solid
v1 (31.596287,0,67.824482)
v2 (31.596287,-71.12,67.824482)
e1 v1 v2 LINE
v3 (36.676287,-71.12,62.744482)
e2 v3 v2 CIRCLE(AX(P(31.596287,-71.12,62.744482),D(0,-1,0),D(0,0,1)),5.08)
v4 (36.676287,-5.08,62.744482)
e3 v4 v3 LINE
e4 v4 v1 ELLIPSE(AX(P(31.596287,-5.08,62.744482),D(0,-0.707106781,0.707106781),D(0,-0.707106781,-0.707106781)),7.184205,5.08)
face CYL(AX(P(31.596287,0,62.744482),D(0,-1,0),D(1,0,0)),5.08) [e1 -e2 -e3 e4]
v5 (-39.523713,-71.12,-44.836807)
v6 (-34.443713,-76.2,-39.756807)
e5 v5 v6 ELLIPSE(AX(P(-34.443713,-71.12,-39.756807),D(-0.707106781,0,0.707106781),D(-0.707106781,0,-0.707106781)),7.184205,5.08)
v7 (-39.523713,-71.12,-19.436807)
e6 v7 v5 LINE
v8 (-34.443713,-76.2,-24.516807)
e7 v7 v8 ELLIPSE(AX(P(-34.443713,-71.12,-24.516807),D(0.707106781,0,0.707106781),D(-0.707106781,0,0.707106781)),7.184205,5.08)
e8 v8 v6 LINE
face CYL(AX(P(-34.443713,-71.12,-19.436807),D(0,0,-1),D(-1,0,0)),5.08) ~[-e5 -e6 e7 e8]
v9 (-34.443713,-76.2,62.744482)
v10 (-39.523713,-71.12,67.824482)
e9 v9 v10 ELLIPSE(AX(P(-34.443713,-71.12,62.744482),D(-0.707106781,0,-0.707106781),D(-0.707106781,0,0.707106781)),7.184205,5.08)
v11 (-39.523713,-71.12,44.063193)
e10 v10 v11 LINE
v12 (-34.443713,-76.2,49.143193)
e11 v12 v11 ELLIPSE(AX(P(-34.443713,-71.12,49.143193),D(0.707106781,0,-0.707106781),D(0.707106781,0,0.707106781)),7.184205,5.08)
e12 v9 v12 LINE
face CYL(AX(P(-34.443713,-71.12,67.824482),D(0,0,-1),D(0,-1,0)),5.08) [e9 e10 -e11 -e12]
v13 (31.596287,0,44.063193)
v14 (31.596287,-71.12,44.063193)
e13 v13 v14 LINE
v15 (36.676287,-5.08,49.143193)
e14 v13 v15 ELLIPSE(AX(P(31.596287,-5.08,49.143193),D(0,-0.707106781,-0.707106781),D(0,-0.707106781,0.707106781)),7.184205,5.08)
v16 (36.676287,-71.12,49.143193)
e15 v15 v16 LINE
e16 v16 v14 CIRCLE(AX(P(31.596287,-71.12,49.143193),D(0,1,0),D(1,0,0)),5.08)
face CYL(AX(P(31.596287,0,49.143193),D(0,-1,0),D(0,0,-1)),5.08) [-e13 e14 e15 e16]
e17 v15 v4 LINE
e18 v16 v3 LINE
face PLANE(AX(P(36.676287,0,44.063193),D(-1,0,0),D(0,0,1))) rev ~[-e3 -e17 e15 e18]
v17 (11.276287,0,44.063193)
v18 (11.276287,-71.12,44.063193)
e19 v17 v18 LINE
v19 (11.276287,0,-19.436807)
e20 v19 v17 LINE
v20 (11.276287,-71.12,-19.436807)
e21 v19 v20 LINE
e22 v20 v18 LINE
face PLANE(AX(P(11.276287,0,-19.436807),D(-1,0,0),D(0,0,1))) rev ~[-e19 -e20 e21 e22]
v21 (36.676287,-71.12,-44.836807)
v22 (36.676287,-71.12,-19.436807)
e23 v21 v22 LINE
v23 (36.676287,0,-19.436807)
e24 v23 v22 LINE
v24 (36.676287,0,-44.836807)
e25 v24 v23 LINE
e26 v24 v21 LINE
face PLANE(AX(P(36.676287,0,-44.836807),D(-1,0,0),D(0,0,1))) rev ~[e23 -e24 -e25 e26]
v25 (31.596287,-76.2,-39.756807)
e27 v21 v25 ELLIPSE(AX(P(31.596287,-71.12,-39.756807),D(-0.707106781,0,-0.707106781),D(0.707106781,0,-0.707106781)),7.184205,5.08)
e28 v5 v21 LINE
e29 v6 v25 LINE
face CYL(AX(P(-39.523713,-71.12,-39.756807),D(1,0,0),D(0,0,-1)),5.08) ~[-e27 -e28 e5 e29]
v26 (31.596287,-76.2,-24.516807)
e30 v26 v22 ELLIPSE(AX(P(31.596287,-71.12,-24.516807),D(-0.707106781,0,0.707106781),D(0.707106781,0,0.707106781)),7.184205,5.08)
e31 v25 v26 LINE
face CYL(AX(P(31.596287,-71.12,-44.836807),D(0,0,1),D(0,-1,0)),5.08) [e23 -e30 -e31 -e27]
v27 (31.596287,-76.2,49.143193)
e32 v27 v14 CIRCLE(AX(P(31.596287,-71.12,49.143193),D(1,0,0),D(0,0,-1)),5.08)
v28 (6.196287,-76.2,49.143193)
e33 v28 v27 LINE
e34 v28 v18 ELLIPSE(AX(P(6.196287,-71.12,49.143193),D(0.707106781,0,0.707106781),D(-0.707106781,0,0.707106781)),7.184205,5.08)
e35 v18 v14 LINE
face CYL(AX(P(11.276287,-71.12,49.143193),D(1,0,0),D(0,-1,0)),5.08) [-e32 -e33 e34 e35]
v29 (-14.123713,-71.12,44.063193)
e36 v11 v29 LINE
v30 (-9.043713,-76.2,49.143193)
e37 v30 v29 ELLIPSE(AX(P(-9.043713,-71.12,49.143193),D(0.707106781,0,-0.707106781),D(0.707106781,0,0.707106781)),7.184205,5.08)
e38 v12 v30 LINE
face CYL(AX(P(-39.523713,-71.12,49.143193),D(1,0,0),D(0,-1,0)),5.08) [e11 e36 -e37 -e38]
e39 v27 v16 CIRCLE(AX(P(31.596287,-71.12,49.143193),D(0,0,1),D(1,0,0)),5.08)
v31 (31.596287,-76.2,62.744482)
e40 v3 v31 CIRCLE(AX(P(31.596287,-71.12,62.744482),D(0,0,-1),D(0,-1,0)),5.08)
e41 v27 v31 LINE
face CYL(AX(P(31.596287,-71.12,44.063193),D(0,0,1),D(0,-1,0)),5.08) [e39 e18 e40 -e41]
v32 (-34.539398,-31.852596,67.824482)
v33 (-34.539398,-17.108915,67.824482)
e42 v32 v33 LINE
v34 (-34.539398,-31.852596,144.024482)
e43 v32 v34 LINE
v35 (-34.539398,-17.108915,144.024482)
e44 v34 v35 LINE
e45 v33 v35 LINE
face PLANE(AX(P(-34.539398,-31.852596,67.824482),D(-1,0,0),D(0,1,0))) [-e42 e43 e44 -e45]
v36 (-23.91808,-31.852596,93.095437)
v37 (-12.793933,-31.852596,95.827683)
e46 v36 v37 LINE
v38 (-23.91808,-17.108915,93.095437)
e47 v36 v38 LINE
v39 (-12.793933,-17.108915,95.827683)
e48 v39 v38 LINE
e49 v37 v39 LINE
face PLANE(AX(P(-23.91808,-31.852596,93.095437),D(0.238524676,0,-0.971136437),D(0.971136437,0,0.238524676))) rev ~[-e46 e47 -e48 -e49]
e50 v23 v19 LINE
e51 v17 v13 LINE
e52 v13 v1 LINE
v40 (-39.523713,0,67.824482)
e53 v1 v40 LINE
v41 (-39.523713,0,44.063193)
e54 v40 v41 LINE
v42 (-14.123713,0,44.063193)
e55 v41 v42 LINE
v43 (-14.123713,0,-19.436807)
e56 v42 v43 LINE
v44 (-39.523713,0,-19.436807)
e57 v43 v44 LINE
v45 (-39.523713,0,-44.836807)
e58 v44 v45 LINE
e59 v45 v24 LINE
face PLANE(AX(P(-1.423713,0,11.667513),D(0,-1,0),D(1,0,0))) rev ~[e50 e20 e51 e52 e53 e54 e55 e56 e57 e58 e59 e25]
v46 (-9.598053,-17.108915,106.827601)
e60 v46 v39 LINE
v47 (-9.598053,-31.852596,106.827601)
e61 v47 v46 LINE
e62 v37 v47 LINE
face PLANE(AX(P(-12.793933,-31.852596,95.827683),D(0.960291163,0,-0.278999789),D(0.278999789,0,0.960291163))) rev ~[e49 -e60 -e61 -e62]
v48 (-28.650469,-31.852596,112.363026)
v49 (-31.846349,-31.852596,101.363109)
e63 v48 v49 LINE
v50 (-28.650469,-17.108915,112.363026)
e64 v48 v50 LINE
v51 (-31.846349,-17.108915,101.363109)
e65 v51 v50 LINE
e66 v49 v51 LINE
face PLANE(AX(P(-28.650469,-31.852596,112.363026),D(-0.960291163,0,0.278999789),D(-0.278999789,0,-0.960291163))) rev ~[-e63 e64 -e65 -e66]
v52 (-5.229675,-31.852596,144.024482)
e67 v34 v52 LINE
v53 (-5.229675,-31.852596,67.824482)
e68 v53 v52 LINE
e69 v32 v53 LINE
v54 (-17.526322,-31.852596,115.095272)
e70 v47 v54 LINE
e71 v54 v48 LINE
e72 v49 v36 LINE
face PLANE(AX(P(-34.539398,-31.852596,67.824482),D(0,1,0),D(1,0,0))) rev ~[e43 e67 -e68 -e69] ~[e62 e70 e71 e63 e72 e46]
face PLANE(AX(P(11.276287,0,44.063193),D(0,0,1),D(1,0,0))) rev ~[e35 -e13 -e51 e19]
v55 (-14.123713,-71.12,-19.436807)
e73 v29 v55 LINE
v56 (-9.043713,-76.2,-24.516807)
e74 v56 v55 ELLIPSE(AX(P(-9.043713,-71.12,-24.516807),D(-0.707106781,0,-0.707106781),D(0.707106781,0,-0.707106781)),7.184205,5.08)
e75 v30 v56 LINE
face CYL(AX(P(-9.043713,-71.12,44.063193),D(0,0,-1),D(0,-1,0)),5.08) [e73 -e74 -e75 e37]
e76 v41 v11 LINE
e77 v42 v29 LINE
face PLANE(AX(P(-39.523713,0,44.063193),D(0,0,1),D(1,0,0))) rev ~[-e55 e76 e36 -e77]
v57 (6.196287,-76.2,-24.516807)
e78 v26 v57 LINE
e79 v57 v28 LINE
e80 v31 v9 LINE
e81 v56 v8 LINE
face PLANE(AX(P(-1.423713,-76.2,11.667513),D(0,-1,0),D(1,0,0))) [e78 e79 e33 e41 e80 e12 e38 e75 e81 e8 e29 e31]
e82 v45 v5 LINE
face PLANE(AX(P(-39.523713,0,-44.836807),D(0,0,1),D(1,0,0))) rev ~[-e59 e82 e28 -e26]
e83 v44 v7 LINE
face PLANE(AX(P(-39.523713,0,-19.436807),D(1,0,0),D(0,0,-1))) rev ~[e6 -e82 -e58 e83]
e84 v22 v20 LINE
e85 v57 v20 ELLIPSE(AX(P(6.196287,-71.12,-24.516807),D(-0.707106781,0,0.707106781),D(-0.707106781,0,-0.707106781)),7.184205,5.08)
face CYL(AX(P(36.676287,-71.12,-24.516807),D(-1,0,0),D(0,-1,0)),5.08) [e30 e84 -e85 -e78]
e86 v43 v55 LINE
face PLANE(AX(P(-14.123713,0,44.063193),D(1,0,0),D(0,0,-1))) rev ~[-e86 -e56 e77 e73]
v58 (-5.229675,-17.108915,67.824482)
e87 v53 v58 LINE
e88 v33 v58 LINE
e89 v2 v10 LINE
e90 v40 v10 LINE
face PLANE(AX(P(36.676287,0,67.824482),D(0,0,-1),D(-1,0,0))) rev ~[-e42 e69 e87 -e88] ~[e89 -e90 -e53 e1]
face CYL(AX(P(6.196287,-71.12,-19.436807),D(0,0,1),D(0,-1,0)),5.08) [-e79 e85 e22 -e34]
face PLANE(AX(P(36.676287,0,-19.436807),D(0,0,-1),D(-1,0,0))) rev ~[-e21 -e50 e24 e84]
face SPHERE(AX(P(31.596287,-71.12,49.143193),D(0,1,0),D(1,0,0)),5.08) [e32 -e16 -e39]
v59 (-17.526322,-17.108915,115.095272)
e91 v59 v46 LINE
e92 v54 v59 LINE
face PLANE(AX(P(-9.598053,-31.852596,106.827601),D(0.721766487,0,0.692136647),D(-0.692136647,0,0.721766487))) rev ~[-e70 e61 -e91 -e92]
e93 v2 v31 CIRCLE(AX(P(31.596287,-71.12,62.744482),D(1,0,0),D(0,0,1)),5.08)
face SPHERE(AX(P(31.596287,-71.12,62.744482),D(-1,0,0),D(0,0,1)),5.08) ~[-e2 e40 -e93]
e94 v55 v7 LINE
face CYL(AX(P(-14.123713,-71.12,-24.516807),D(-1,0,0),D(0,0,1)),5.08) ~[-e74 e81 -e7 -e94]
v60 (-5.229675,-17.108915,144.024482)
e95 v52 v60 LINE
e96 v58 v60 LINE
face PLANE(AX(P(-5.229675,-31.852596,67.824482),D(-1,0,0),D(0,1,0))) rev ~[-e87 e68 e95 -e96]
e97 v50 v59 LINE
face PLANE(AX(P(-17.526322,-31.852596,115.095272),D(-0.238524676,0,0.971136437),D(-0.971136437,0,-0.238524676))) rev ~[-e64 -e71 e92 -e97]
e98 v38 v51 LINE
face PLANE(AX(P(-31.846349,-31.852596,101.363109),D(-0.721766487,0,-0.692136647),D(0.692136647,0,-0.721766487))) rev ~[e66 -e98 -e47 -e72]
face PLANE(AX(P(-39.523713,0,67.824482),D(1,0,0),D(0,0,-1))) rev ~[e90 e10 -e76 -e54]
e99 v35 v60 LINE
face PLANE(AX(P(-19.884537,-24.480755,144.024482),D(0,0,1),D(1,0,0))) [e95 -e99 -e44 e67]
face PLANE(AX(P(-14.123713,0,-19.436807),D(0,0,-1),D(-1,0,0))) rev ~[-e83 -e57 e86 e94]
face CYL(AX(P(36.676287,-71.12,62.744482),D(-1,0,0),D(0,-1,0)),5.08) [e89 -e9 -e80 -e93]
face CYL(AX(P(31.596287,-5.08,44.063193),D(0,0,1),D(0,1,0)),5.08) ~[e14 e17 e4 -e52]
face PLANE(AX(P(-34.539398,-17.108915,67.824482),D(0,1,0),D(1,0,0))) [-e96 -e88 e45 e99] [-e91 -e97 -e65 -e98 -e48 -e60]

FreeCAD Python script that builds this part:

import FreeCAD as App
import Part
import Sketcher
from FreeCAD import Vector
Q = App.Units.Quantity


def edges_at(feature, points):
    """Names of the edges that pass closest to the given points."""
    edges = feature.Shape.Edges
    near = lambda p: min(range(len(edges)), key=lambda i: edges[i].distToShape(Part.Vertex(*p))[0])
    return sorted({f"Edge{near(p) + 1}" for p in points})

doc = App.newDocument("Part")
body = doc.addObject("PartDesign::Body", "Body")

# Sketch on XZ plane
sketch1 = body.newObject("Sketcher::SketchObject", "Sketch")
sketch1.AttachmentSupport = (doc.getObject("XZ_Plane"), [""])
sketch1.MapMode = "FlatFace"
sketch1.addGeometry([
    Part.LineSegment(Vector(-39.523713, -19.436807, 0), Vector(-39.523713, -44.836807, 0)),  # 0
    Part.LineSegment(Vector(-39.523713, -44.836807, 0), Vector(36.676287, -44.836807, 0)),  # 1
    Part.LineSegment(Vector(36.676287, -44.836807, 0), Vector(36.676287, -19.436807, 0)),  # 2
    Part.LineSegment(Vector(36.676287, -19.436807, 0), Vector(11.276287, -19.436807, 0)),  # 3
    Part.LineSegment(Vector(11.276287, -19.436807, 0), Vector(11.276287, 44.063193, 0)),  # 4
    Part.LineSegment(Vector(11.276287, 44.063193, 0), Vector(36.676287, 44.063193, 0)),  # 5
    Part.LineSegment(Vector(36.676287, 44.063193, 0), Vector(36.676287, 67.824482, 0)),  # 6
    Part.LineSegment(Vector(36.676287, 67.824482, 0), Vector(-39.523713, 67.824482, 0)),  # 7
    Part.LineSegment(Vector(-39.523713, 67.824482, 0), Vector(-39.523713, 44.063193, 0)),  # 8
    Part.LineSegment(Vector(-39.523713, 44.063193, 0), Vector(-14.123713, 44.063193, 0)),  # 9
    Part.LineSegment(Vector(-14.123713, 44.063193, 0), Vector(-14.123713, -19.436807, 0)),  # 10
    Part.LineSegment(Vector(-14.123713, -19.436807, 0), Vector(-39.523713, -19.436807, 0)),  # 11
], False)
sketch1.addConstraint([
    Sketcher.Constraint("Coincident", 0, 2, 1, 1),
    Sketcher.Constraint("Coincident", 1, 2, 2, 1),
    Sketcher.Constraint("Coincident", 2, 2, 3, 1),
    Sketcher.Constraint("Coincident", 3, 2, 4, 1),
    Sketcher.Constraint("Coincident", 4, 2, 5, 1),
    Sketcher.Constraint("Coincident", 5, 2, 6, 1),
    Sketcher.Constraint("Coincident", 6, 2, 7, 1),
    Sketcher.Constraint("Coincident", 7, 2, 8, 1),
    Sketcher.Constraint("Coincident", 8, 2, 9, 1),
    Sketcher.Constraint("Coincident", 9, 2, 10, 1),
    Sketcher.Constraint("Coincident", 10, 2, 11, 1),
    Sketcher.Constraint("Coincident", 11, 2, 0, 1),
    Sketcher.Constraint("Vertical", 0),
    Sketcher.Constraint("Horizontal", 1),
    Sketcher.Constraint("Vertical", 2),
    Sketcher.Constraint("Horizontal", 3),
    Sketcher.Constraint("Vertical", 4),
    Sketcher.Constraint("Horizontal", 5),
    Sketcher.Constraint("Vertical", 6),
    Sketcher.Constraint("Horizontal", 7),
    Sketcher.Constraint("Vertical", 8),
    Sketcher.Constraint("Horizontal", 9),
    Sketcher.Constraint("Vertical", 10),
    Sketcher.Constraint("Horizontal", 11),
    Sketcher.Constraint("Horizontal", 5, 2, 8, 2),
    Sketcher.Constraint("Horizontal", 3, 2, 10, 2),
    Sketcher.Constraint("Vertical", 2, 2, 5, 2),
    Sketcher.Constraint("Vertical", 0, 2, 7, 2),
    Sketcher.Constraint("Equal", 5, 9),
    Sketcher.Constraint("Equal", 11, 0),
    Sketcher.Constraint("DistanceX", 1, 1, 1, 2, Q("3 in")),
    Sketcher.Constraint("DistanceX", 3, 2, 3, 1, Q("1 in")),
    Sketcher.Constraint("DistanceY", 4, 1, 4, 2, Q("2.5 in")),
    Sketcher.Constraint("DistanceY", 6, 1, 6, 2, 23.761289),
    Sketcher.Constraint("DistanceX", 0, 2, -1, 1, 39.523713),
    Sketcher.Constraint("DistanceY", 0, 2, -1, 1, 44.836807),
])
pad1 = body.newObject("PartDesign::Pad", "Pad")
pad1.Profile = sketch1
pad1.Length = Q("3 in")

# Sketch on XY plane
sketch2 = body.newObject("Sketcher::SketchObject", "Sketch001")
sketch2.AttachmentSupport = (doc.getObject("XY_Plane"), [""])
sketch2.MapMode = "FlatFace"
sketch2.AttachmentOffset = App.Placement(Vector(0, 0, 67.824482), App.Rotation())
sketch2.addGeometry([
    Part.LineSegment(Vector(-34.539398, -17.108915, 0), Vector(-34.539398, -31.852596, 0)),
    Part.LineSegment(Vector(-34.539398, -31.852596, 0), Vector(-5.229675, -31.852596, 0)),
    Part.LineSegment(Vector(-5.229675, -31.852596, 0), Vector(-5.229675, -17.108915, 0)),
    Part.LineSegment(Vector(-5.229675, -17.108915, 0), Vector(-34.539398, -17.108915, 0)),
], False)
sketch2.addConstraint([
    Sketcher.Constraint("Coincident", 0, 2, 1, 1),
    Sketcher.Constraint("Coincident", 1, 2, 2, 1),
    Sketcher.Constraint("Coincident", 2, 2, 3, 1),
    Sketcher.Constraint("Coincident", 3, 2, 0, 1),
    Sketcher.Constraint("Vertical", 0),
    Sketcher.Constraint("Horizontal", 1),
    Sketcher.Constraint("Vertical", 2),
    Sketcher.Constraint("Horizontal", 3),
    Sketcher.Constraint("DistanceY", 0, 2, 0, 1, 14.74368),
    Sketcher.Constraint("DistanceX", 1, 1, 1, 2, 29.309723),
    Sketcher.Constraint("DistanceX", 0, 2, -1, 1, 34.539398),
    Sketcher.Constraint("DistanceY", 0, 2, -1, 1, 31.852596),
])
pad2 = body.newObject("PartDesign::Pad", "Pad001")
pad2.Profile = sketch2
pad2.Length = Q("3 in")

# Sketch on XZ plane
sketch3 = body.newObject("Sketcher::SketchObject", "Sketch002")
sketch3.AttachmentSupport = (doc.getObject("XZ_Plane"), [""])
sketch3.MapMode = "FlatFace"
sketch3.AttachmentOffset = App.Placement(Vector(0, 0, 31.852596), App.Rotation())
sketch3.addGeometry([
    Part.LineSegment(Vector(-17.526322, 115.095272, 0), Vector(-28.650469, 112.363026, 0)),  # 0
    Part.LineSegment(Vector(-28.650469, 112.363026, 0), Vector(-31.846349, 101.363109, 0)),  # 1
    Part.LineSegment(Vector(-31.846349, 101.363109, 0), Vector(-23.91808, 93.095437, 0)),  # 2
    Part.LineSegment(Vector(-23.91808, 93.095437, 0), Vector(-12.793933, 95.827683, 0)),  # 3
    Part.LineSegment(Vector(-12.793933, 95.827683, 0), Vector(-9.598053, 106.827601, 0)),  # 4
    Part.LineSegment(Vector(-9.598053, 106.827601, 0), Vector(-17.526322, 115.095272, 0)),  # 5
], False)
sketch3.addConstraint([
    Sketcher.Constraint("Coincident", 0, 2, 1, 1),
    Sketcher.Constraint("Coincident", 1, 2, 2, 1),
    Sketcher.Constraint("Coincident", 2, 2, 3, 1),
    Sketcher.Constraint("Coincident", 3, 2, 4, 1),
    Sketcher.Constraint("Coincident", 4, 2, 5, 1),
    Sketcher.Constraint("Coincident", 5, 2, 0, 1),
    Sketcher.Constraint("Parallel", 0, 3),
    Sketcher.Constraint("Parallel", 1, 4),
    Sketcher.Constraint("Parallel", 2, 5),
    Sketcher.Constraint("Equal", 0, 1),
    Sketcher.Constraint("Equal", 1, 2),
    Sketcher.Constraint("Equal", 2, 3),
    Sketcher.Constraint("DistanceY", -1, 1, 4, 2, 106.827601),
    Sketcher.Constraint("DistanceX", 0, 2, -1, 1, 28.650469),
    Sketcher.Constraint("DistanceX", 1, 2, -1, 1, 31.846349),
    Sketcher.Constraint("DistanceY", -1, 1, 1, 2, 101.363109),
    Sketcher.Constraint("DistanceX", 2, 2, -1, 1, 23.91808),
    Sketcher.Constraint("DistanceX", 5, 2, -1, 1, 17.526322),
])
pocket1 = body.newObject("PartDesign::Pocket", "Pocket")
pocket1.Profile = sketch3
pocket1.Type = "ThroughAll"
doc.recompute()

fillet = body.newObject("PartDesign::Fillet", "Fillet")
fillet.Base = (pocket1, edges_at(pocket1, [
    (-1.424, -76.2, 67.824),
    (36.676, -38.1, 67.824),
    (36.676, -38.1, 44.063),
    (36.676, 0, 55.944),
    (36.676, -76.2, 55.944),
    (-26.824, -76.2, 44.063),
    (-14.124, -76.2, 12.313),
    (-26.824, -76.2, -19.437),
    (-39.524, -76.2, -32.137),
    (-1.424, -76.2, -44.837),
    (36.676, -76.2, -32.137),
    (23.976, -76.2, -19.437),
    (11.276, -76.2, 12.313),
    (23.976, -76.2, 44.063),
    (-39.524, -76.2, 55.944),
]))
fillet.Radius = Q("0.2 in")

doc.recompute()
